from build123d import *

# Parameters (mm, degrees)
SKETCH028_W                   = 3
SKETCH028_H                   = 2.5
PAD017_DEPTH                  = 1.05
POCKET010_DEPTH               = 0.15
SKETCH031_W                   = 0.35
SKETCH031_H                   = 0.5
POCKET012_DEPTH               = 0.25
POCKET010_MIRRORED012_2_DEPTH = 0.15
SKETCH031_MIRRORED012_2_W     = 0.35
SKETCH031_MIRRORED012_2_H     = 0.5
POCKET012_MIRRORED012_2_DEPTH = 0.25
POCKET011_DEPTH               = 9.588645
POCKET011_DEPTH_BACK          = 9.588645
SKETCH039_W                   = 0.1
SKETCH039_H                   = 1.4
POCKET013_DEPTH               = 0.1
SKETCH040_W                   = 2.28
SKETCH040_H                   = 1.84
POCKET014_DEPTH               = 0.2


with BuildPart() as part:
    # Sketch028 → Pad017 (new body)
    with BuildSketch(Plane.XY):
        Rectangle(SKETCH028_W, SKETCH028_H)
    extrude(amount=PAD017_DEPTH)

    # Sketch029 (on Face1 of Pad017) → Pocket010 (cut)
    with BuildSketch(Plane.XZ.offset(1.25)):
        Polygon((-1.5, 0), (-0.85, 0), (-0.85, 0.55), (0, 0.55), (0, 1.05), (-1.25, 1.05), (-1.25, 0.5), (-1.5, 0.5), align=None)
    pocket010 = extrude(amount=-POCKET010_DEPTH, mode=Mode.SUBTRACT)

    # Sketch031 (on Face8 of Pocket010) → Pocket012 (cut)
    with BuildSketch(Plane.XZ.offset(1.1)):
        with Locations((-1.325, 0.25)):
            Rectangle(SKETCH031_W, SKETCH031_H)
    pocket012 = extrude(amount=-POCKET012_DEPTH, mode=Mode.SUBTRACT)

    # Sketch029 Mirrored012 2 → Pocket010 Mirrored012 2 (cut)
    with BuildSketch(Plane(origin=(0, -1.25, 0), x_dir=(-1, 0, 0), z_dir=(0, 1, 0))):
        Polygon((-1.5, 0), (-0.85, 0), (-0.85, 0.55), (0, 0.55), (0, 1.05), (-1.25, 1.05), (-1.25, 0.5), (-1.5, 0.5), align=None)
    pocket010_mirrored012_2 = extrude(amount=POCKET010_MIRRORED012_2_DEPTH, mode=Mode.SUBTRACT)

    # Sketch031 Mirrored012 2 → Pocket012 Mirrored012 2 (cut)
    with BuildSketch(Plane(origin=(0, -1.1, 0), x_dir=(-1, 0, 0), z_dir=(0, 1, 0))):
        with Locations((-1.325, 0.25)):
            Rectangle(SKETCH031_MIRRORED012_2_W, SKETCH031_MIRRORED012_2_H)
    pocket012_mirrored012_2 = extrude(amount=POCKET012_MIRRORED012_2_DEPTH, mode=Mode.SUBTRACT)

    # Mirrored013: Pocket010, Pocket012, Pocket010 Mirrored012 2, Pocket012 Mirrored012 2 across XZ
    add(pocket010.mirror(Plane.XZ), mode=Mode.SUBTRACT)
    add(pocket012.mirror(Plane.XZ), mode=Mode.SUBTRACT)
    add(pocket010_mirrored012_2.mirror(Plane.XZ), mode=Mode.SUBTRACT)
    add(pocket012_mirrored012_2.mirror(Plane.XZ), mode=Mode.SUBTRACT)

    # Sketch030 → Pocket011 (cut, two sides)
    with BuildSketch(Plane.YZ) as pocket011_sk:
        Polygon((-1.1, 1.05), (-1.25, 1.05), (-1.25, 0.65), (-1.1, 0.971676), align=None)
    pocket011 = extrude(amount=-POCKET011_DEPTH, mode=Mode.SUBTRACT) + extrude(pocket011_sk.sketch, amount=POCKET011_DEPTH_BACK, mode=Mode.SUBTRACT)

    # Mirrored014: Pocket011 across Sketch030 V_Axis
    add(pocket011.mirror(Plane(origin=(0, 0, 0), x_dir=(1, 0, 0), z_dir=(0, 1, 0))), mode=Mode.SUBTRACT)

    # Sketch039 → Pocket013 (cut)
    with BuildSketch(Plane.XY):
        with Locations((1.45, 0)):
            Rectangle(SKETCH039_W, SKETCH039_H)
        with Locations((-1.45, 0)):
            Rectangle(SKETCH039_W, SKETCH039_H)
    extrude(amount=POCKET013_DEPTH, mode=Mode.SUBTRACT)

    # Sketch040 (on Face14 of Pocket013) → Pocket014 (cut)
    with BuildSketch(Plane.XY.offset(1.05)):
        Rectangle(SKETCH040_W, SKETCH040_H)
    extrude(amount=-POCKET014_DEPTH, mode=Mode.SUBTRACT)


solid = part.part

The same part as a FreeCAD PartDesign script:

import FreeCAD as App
import Part
import Sketcher
Q = App.Units.Quantity


def add_polygon(sketch, points):
    """Adds a closed chain of lines whose ends are joined by coincident constraints."""
    first, n = sketch.GeometryCount, len(points)
    for a, b in zip(points, points[1:] + points[:1]):
        sketch.addGeometry(Part.LineSegment(App.Vector(*a, 0), App.Vector(*b, 0)), False)
    for i in range(n):
        sketch.addConstraint(Sketcher.Constraint("Coincident", first + i, 2, first + (i + 1) % n, 1))

doc = App.newDocument("Part")
params = doc.addObject("Spreadsheet::Sheet", "Params")
for row, (alias, value) in enumerate([
    ("sketch1_width", "3 mm"),
    ("sketch1_height", "2.5 mm"),
    ("pad1_length", "1.05 mm"),
    ("sketch2_height", "0.5 mm"),
    ("sketch2_width", "0.65 mm"),
    ("sketch2_width2", "0.85 mm"),
    ("sketch2_width3", "1.25 mm"),
    ("sketch2_height2", "0.55 mm"),
    ("pocket1_length", "0.15 mm"),
    ("sketch3_height", "0.5 mm"),
    ("sketch3_width", "0.35 mm"),
    ("pocket2_length", "0.25 mm"),
    ("sketch4_height", "0.5 mm"),
    ("sketch4_width", "0.65 mm"),
    ("sketch4_width2", "0.85 mm"),
    ("sketch4_width3", "1.25 mm"),
    ("sketch4_height2", "0.55 mm"),
    ("pocket3_length", "0.15 mm"),
    ("sketch5_height", "0.5 mm"),
    ("sketch5_width", "0.35 mm"),
    ("pocket4_length", "0.25 mm"),
    ("sketch6_height", "0.4 mm"),
    ("sketch6_width", "0.15 mm"),
    ("sketch7_width", "0.1 mm"),
    ("sketch7_height", "1.4 mm"),
    ("pocket6_length", "0.1 mm"),
    ("sketch8_width", "2.28 mm"),
    ("sketch8_height", "1.84 mm"),
    ("pocket7_length", "0.2 mm"),
], start=1):
    params.set(f"A{row}", alias)
    params.set(f"B{row}", "=" + value)
    params.setAlias(f"B{row}", alias)

body = doc.addObject("PartDesign::Body", "Body")

# Sketch on XY plane
sketch1 = body.newObject("Sketcher::SketchObject", "Sketch")
sketch1.AttachmentSupport = (doc.getObject("XY_Plane"), [""])
sketch1.MapMode = "FlatFace"
add_polygon(sketch1, [(-1.5, 1.2), (-1.5, -1.2), (1.5, -1.2), (1.5, 1.2)])  # lines 0-3
sketch1.addConstraint(Sketcher.Constraint("Vertical", 0))
sketch1.addConstraint(Sketcher.Constraint("Horizontal", 1))
sketch1.addConstraint(Sketcher.Constraint("Vertical", 2))
sketch1.addConstraint(Sketcher.Constraint("Horizontal", 3))
sketch1.addConstraint(Sketcher.Constraint("Symmetric", 0, 2, 2, 2, -1, 1))
sketch1.addConstraint(Sketcher.Constraint("DistanceX", 1, 1, 1, 2, 3.0))
sketch1.addConstraint(Sketcher.Constraint("DistanceY", 0, 2, 0, 1, 2.5))
sketch1.setExpression("Constraints[9]", "Params.sketch1_width")
sketch1.setExpression("Constraints[10]", "Params.sketch1_height")
pad1 = body.newObject("PartDesign::Pad", "Pad")
pad1.Profile = sketch1
pad1.setExpression("Length", "Params.pad1_length")

# Sketch on XZ plane
sketch2 = body.newObject("Sketcher::SketchObject", "Sketch001")
sketch2.AttachmentSupport = (doc.getObject("XZ_Plane"), [""])
sketch2.MapMode = "FlatFace"
sketch2.AttachmentOffset = App.Placement(App.Vector(0, 0, 1.25), App.Rotation())
add_polygon(sketch2, [(-1.5, 0), (-0.85, 0), (-0.85, 0.55), (0, 0.55), (0, 1.05), (-1.25, 1.05), (-1.25, 0.5), (-1.5, 0.5)])  # lines 0-7
sketch2.addConstraint(Sketcher.Constraint("Horizontal", 0))
sketch2.addConstraint(Sketcher.Constraint("Vertical", 1))
sketch2.addConstraint(Sketcher.Constraint("Horizontal", 2))
sketch2.addConstraint(Sketcher.Constraint("Vertical", 3))
sketch2.addConstraint(Sketcher.Constraint("Horizontal", 4))
sketch2.addConstraint(Sketcher.Constraint("Vertical", 5))
sketch2.addConstraint(Sketcher.Constraint("Horizontal", 6))
sketch2.addConstraint(Sketcher.Constraint("Vertical", 7))
sketch2.addConstraint(Sketcher.Constraint("PointOnObject", 0, 2, -1))
sketch2.addConstraint(Sketcher.Constraint("PointOnObject", 2, 2, -2))
sketch2.addConstraint(Sketcher.Constraint("Equal", 1, 5))
sketch2.addConstraint(Sketcher.Constraint("DistanceY", 3, 1, 3, 2, 0.5))
sketch2.addConstraint(Sketcher.Constraint("DistanceX", 0, 1, 0, 2, 0.65))
sketch2.addConstraint(Sketcher.Constraint("DistanceX", 2, 1, 2, 2, 0.85))
sketch2.addConstraint(Sketcher.Constraint("DistanceX", 4, 2, 4, 1, 1.25))
sketch2.addConstraint(Sketcher.Constraint("DistanceY", 1, 1, 1, 2, 0.55))
sketch2.setExpression("Constraints[19]", "Params.sketch2_height")
sketch2.setExpression("Constraints[20]", "Params.sketch2_width")
sketch2.setExpression("Constraints[21]", "Params.sketch2_width2")
sketch2.setExpression("Constraints[22]", "Params.sketch2_width3")
sketch2.setExpression("Constraints[23]", "Params.sketch2_height2")
pocket1 = body.newObject("PartDesign::Pocket", "Pocket")
pocket1.Profile = sketch2
pocket1.setExpression("Length", "Params.pocket1_length")

# Sketch on XZ plane
sketch3 = body.newObject("Sketcher::SketchObject", "Sketch002")
sketch3.AttachmentSupport = (doc.getObject("XZ_Plane"), [""])
sketch3.MapMode = "FlatFace"
sketch3.AttachmentOffset = App.Placement(App.Vector(0, 0, 1.1), App.Rotation())
add_polygon(sketch3, [(-1.5, 0.5), (-1.5, 0), (-1.15, 0), (-1.15, 0.5)])  # lines 0-3
sketch3.addConstraint(Sketcher.Constraint("Vertical", 0))
sketch3.addConstraint(Sketcher.Constraint("Horizontal", 1))
sketch3.addConstraint(Sketcher.Constraint("Vertical", 2))
sketch3.addConstraint(Sketcher.Constraint("Horizontal", 3))
sketch3.addConstraint(Sketcher.Constraint("PointOnObject", 0, 2, -1))
sketch3.addConstraint(Sketcher.Constraint("DistanceY", 0, 2, 0, 1, 0.5))
sketch3.addConstraint(Sketcher.Constraint("DistanceX", 1, 1, 1, 2, 0.35))
sketch3.addConstraint(Sketcher.Constraint("DistanceX", 0, 2, -1, 1, 1.5))
sketch3.setExpression("Constraints[9]", "Params.sketch3_height")
sketch3.setExpression("Constraints[10]", "Params.sketch3_width")
pocket2 = body.newObject("PartDesign::Pocket", "Pocket001")
pocket2.Profile = sketch3
pocket2.setExpression("Length", "Params.pocket2_length")

# Sketch on XZ plane
sketch4 = body.newObject("Sketcher::SketchObject", "Sketch003")
sketch4.AttachmentSupport = (doc.getObject("XZ_Plane"), [""])
sketch4.MapMode = "FlatFace"
sketch4.AttachmentOffset = App.Placement(App.Vector(0, 0, 1.25), App.Rotation())
add_polygon(sketch4, [(1.5, 0), (0.85, 0), (0.85, 0.55), (0, 0.55), (0, 1.05), (1.25, 1.05), (1.25, 0.5), (1.5, 0.5)])  # lines 0-7
sketch4.addConstraint(Sketcher.Constraint("Horizontal", 0))
sketch4.addConstraint(Sketcher.Constraint("Vertical", 1))
sketch4.addConstraint(Sketcher.Constraint("Horizontal", 2))
sketch4.addConstraint(Sketcher.Constraint("Vertical", 3))
sketch4.addConstraint(Sketcher.Constraint("Horizontal", 4))
sketch4.addConstraint(Sketcher.Constraint("Vertical", 5))
sketch4.addConstraint(Sketcher.Constraint("Horizontal", 6))
sketch4.addConstraint(Sketcher.Constraint("Vertical", 7))
sketch4.addConstraint(Sketcher.Constraint("PointOnObject", 0, 2, -1))
sketch4.addConstraint(Sketcher.Constraint("PointOnObject", 2, 2, -2))
sketch4.addConstraint(Sketcher.Constraint("Equal", 1, 5))
sketch4.addConstraint(Sketcher.Constraint("DistanceY", 3, 1, 3, 2, 0.5))
sketch4.addConstraint(Sketcher.Constraint("DistanceX", 0, 2, 0, 1, 0.65))
sketch4.addConstraint(Sketcher.Constraint("DistanceX", 2, 2, 2, 1, 0.85))
sketch4.addConstraint(Sketcher.Constraint("DistanceX", 4, 1, 4, 2, 1.25))
sketch4.addConstraint(Sketcher.Constraint("DistanceY", 1, 1, 1, 2, 0.55))
sketch4.setExpression("Constraints[19]", "Params.sketch4_height")
sketch4.setExpression("Constraints[20]", "Params.sketch4_width")
sketch4.setExpression("Constraints[21]", "Params.sketch4_width2")
sketch4.setExpression("Constraints[22]", "Params.sketch4_width3")
sketch4.setExpression("Constraints[23]", "Params.sketch4_height2")
pocket3 = body.newObject("PartDesign::Pocket", "Pocket002")
pocket3.Profile = sketch4
pocket3.setExpression("Length", "Params.pocket3_length")

# Sketch on XZ plane
sketch5 = body.newObject("Sketcher::SketchObject", "Sketch004")
sketch5.AttachmentSupport = (doc.getObject("XZ_Plane"), [""])
sketch5.MapMode = "FlatFace"
sketch5.AttachmentOffset = App.Placement(App.Vector(0, 0, 1.1), App.Rotation())
add_polygon(sketch5, [(1.5, 0.5), (1.5, 0), (1.15, 0), (1.15, 0.5)])  # lines 0-3
sketch5.addConstraint(Sketcher.Constraint("Vertical", 0))
sketch5.addConstraint(Sketcher.Constraint("Horizontal", 1))
sketch5.addConstraint(Sketcher.Constraint("Vertical", 2))
sketch5.addConstraint(Sketcher.Constraint("Horizontal", 3))
sketch5.addConstraint(Sketcher.Constraint("PointOnObject", 0, 2, -1))
sketch5.addConstraint(Sketcher.Constraint("DistanceY", 0, 2, 0, 1, 0.5))
sketch5.addConstraint(Sketcher.Constraint("DistanceX", 1, 2, 1, 1, 0.35))
sketch5.addConstraint(Sketcher.Constraint("DistanceX", -1, 1, 0, 2, 1.5))
sketch5.setExpression("Constraints[9]", "Params.sketch5_height")
sketch5.setExpression("Constraints[10]", "Params.sketch5_width")
pocket4 = body.newObject("PartDesign::Pocket", "Pocket003")
pocket4.Profile = sketch5
pocket4.setExpression("Length", "Params.pocket4_length")
doc.recompute()

mirrored = body.newObject("PartDesign::Mirrored", "Mirrored")
mirrored.Originals = [pocket1, pocket2, pocket3, pocket4]
mirrored.MirrorPlane = (doc.getObject("XZ_Plane"), [""])
body.Tip = mirrored

# Sketch on YZ plane
sketch6 = body.newObject("Sketcher::SketchObject", "Sketch005")
sketch6.AttachmentSupport = (doc.getObject("YZ_Plane"), [""])
sketch6.MapMode = "FlatFace"
add_polygon(sketch6, [(-1.1, 1.05), (-1.25, 1.05), (-1.25, 0.65), (-1.1, 0.97)])  # lines 0-3
sketch6.addConstraint(Sketcher.Constraint("Horizontal", 0))
sketch6.addConstraint(Sketcher.Constraint("Vertical", 1))
sketch6.addConstraint(Sketcher.Constraint("Vertical", 3))
sketch6.addConstraint(Sketcher.Constraint("Angle", 2, Q("64.999997 deg")))
sketch6.addConstraint(Sketcher.Constraint("DistanceY", 1, 2, 1, 1, 0.4))
sketch6.addConstraint(Sketcher.Constraint("DistanceX", 0, 2, 0, 1, 0.15))
sketch6.addConstraint(Sketcher.Constraint("DistanceX", 2, 2, -1, 1, 1.1))
sketch6.addConstraint(Sketcher.Constraint("DistanceY", -1, 1, 0, 2, 1.05))
sketch6.setExpression("Constraints[8]", "Params.sketch6_height")
sketch6.setExpression("Constraints[9]", "Params.sketch6_width")
pocket5 = body.newObject("PartDesign::Pocket", "Pocket004")
pocket5.Profile = sketch6
pocket5.Type = "ThroughAll"
pocket5.Midplane = True
doc.recompute()

mirrored2 = body.newObject("PartDesign::Mirrored", "Mirrored001")
mirrored2.Originals = [pocket5]
mirrored2.MirrorPlane = (doc.getObject("XZ_Plane"), [""])
body.Tip = mirrored2

# Sketch on XY plane
sketch7 = body.newObject("Sketcher::SketchObject", "Sketch006")
sketch7.AttachmentSupport = (doc.getObject("XY_Plane"), [""])
sketch7.MapMode = "FlatFace"
add_polygon(sketch7, [(1.4, 0.7), (1.4, -0.7), (1.5, -0.7), (1.5, 0.7)])  # lines 0-3
add_polygon(sketch7, [(-1.5, 0.7), (-1.5, -0.7), (-1.4, -0.7), (-1.4, 0.7)])  # lines 4-7
sketch7.addConstraint(Sketcher.Constraint("Vertical", 0))
sketch7.addConstraint(Sketcher.Constraint("Horizontal", 1))
sketch7.addConstraint(Sketcher.Constraint("Vertical", 2))
sketch7.addConstraint(Sketcher.Constraint("Horizontal", 3))
sketch7.addConstraint(Sketcher.Constraint("Vertical", 4))
sketch7.addConstraint(Sketcher.Constraint("Horizontal", 5))
sketch7.addConstraint(Sketcher.Constraint("Vertical", 6))
sketch7.addConstraint(Sketcher.Constraint("Horizontal", 7))
sketch7.addConstraint(Sketcher.Constraint("Symmetric", 2, 2, 4, 2, -1, 1))
sketch7.addConstraint(Sketcher.Constraint("Symmetric", 0, 2, 6, 2, -1, 1))
sketch7.addConstraint(Sketcher.Constraint("Horizontal", 1, 2, 4, 2))
sketch7.addConstraint(Sketcher.Constraint("DistanceX", 1, 1, 1, 2, 0.1))
sketch7.addConstraint(Sketcher.Constraint("DistanceY", 0, 2, 0, 1, 1.4))
sketch7.addConstraint(Sketcher.Constraint("DistanceX", 4, 2, 1, 2, 3.0))
sketch7.setExpression("Constraints[19]", "Params.sketch7_width")
sketch7.setExpression("Constraints[20]", "Params.sketch7_height")
pocket6 = body.newObject("PartDesign::Pocket", "Pocket005")
pocket6.Profile = sketch7
pocket6.setExpression("Length", "Params.pocket6_length")
pocket6.Reversed = True

# Sketch on XY plane
sketch8 = body.newObject("Sketcher::SketchObject", "Sketch007")
sketch8.AttachmentSupport = (doc.getObject("XY_Plane"), [""])
sketch8.MapMode = "FlatFace"
sketch8.AttachmentOffset = App.Placement(App.Vector(0, 0, 1.05), App.Rotation())
add_polygon(sketch8, [(-1.1, 0.9), (-1.1, -0.9), (1.1, -0.9), (1.1, 0.9)])  # lines 0-3
sketch8.addConstraint(Sketcher.Constraint("Vertical", 0))
sketch8.addConstraint(Sketcher.Constraint("Horizontal", 1))
sketch8.addConstraint(Sketcher.Constraint("Vertical", 2))
sketch8.addConstraint(Sketcher.Constraint("Horizontal", 3))
sketch8.addConstraint(Sketcher.Constraint("Symmetric", 0, 2, 2, 2, -1, 1))
sketch8.addConstraint(Sketcher.Constraint("DistanceX", 1, 1, 1, 2, 2.28))
sketch8.addConstraint(Sketcher.Constraint("DistanceY", 0, 2, 0, 1, 1.84))
sketch8.setExpression("Constraints[9]", "Params.sketch8_width")
sketch8.setExpression("Constraints[10]", "Params.sketch8_height")
pocket7 = body.newObject("PartDesign::Pocket", "Pocket006")
pocket7.Profile = sketch8
pocket7.setExpression("Length", "Params.pocket7_length")

doc.recompute()
